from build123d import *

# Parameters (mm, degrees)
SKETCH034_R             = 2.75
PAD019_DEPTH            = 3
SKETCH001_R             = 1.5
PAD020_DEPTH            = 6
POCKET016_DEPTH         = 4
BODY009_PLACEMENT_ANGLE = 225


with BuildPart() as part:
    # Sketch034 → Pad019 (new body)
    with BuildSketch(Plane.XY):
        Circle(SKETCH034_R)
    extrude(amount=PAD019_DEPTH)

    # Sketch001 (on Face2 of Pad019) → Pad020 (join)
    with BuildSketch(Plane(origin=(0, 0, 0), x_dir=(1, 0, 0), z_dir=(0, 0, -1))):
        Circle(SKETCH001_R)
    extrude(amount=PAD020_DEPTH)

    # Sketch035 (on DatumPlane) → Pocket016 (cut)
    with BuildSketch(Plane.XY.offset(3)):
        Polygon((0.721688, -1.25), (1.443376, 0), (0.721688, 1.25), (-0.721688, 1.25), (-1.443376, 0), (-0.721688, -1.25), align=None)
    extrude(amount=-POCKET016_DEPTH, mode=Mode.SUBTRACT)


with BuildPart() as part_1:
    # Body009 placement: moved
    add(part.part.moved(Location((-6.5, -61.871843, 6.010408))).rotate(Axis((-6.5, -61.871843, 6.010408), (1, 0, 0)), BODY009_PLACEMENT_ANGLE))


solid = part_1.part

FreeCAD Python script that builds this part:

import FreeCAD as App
import Part
import Sketcher

V = App.Vector
Q = App.Units.Quantity


def add_polygon(sketch, points):
    """Adds a closed chain of lines whose ends are joined by coincident constraints."""
    first, n = sketch.GeometryCount, len(points)
    for a, b in zip(points, points[1:] + points[:1]):
        sketch.addGeometry(Part.LineSegment(App.Vector(*a, 0), App.Vector(*b, 0)), False)
    for i in range(n):
        sketch.addConstraint(Sketcher.Constraint("Coincident", first + i, 2, first + (i + 1) % n, 1))

doc = App.newDocument("Part")
body = doc.addObject("PartDesign::Body", "Body")

sketch1 = body.newObject("Sketcher::SketchObject", "Sketch")
sketch1.AttachmentSupport = (doc.getObject("XY_Plane"), [""])
sketch1.MapMode = "FlatFace"
sketch1.addGeometry(Part.Circle(V(0, 0, 0), V(0, 0, 1), 2.8), False)
sketch1.addConstraint(Sketcher.Constraint("Coincident", 0, 3, -1, 1))
sketch1.addConstraint(Sketcher.Constraint("Diameter", 0, Q("5.5 mm")))
pad1 = body.newObject("PartDesign::Pad", "Pad")
pad1.Profile = sketch1
pad1.Length = 3

sketch2 = body.newObject("Sketcher::SketchObject", "Sketch001")
sketch2.AttachmentSupport = (doc.getObject("XY_Plane"), [""])
sketch2.MapMode = "FlatFace"
sketch2.addGeometry(Part.Circle(V(0, 0, 0), V(0, 0, 1), 1.5), False)
sketch2.addConstraint(Sketcher.Constraint("Coincident", 0, 3, -1, 1))
sketch2.addConstraint(Sketcher.Constraint("Diameter", 0, Q("3 mm")))
pad2 = body.newObject("PartDesign::Pad", "Pad001")
pad2.Profile = sketch2
pad2.Length = 6
pad2.Reversed = True

sketch3 = body.newObject("Sketcher::SketchObject", "Sketch002")
sketch3.AttachmentSupport = (doc.getObject("XY_Plane"), [""])
sketch3.MapMode = "FlatFace"
sketch3.AttachmentOffset = App.Placement(V(0, 0, 3), App.Rotation())
add_polygon(sketch3, [(0.7, -1.2), (1.4, 0), (0.7, 1.2), (-0.7, 1.2), (-1.4, 0), (-0.7, -1.2)])
sketch3.addConstraint(Sketcher.Constraint("Horizontal", 2))
sketch3.addConstraint(Sketcher.Constraint("Horizontal", 5))
sketch3.addConstraint(Sketcher.Constraint("Symmetric", 0, 2, 3, 2, -1, 1))
sketch3.addConstraint(Sketcher.Constraint("Symmetric", 1, 2, 4, 2, -1, 1))
sketch3.addConstraint(Sketcher.Constraint("PointOnObject", 0, 2, -1))
sketch3.addConstraint(Sketcher.Constraint("Parallel", 0, 3))
sketch3.addConstraint(Sketcher.Constraint("Vertical", 2, 2, 4, 2))
sketch3.addConstraint(Sketcher.Constraint("Angle", 0, Q("59.999994 deg")))
sketch3.addConstraint(Sketcher.Constraint("DistanceY", 4, 2, 2, 2, Q("2.5 mm")))
sketch3.addConstraint(Sketcher.Constraint("DistanceX", 2, 2, 2, 1, Q("1.443376 mm")))
pocket1 = body.newObject("PartDesign::Pocket", "Pocket")
pocket1.Profile = sketch3
pocket1.Length = 4
body2 = doc.addObject("PartDesign::Body", "Body001")
doc.recompute()

body.Placement = App.Placement(V(-6.5, -61.871843, 6.010408), App.Rotation(V(1, 0, 0), 225))
boolean = body2.newObject("PartDesign::Boolean", "Boolean")
boolean.Type = "Fuse"
boolean.addObjects([body])

doc.recompute()
